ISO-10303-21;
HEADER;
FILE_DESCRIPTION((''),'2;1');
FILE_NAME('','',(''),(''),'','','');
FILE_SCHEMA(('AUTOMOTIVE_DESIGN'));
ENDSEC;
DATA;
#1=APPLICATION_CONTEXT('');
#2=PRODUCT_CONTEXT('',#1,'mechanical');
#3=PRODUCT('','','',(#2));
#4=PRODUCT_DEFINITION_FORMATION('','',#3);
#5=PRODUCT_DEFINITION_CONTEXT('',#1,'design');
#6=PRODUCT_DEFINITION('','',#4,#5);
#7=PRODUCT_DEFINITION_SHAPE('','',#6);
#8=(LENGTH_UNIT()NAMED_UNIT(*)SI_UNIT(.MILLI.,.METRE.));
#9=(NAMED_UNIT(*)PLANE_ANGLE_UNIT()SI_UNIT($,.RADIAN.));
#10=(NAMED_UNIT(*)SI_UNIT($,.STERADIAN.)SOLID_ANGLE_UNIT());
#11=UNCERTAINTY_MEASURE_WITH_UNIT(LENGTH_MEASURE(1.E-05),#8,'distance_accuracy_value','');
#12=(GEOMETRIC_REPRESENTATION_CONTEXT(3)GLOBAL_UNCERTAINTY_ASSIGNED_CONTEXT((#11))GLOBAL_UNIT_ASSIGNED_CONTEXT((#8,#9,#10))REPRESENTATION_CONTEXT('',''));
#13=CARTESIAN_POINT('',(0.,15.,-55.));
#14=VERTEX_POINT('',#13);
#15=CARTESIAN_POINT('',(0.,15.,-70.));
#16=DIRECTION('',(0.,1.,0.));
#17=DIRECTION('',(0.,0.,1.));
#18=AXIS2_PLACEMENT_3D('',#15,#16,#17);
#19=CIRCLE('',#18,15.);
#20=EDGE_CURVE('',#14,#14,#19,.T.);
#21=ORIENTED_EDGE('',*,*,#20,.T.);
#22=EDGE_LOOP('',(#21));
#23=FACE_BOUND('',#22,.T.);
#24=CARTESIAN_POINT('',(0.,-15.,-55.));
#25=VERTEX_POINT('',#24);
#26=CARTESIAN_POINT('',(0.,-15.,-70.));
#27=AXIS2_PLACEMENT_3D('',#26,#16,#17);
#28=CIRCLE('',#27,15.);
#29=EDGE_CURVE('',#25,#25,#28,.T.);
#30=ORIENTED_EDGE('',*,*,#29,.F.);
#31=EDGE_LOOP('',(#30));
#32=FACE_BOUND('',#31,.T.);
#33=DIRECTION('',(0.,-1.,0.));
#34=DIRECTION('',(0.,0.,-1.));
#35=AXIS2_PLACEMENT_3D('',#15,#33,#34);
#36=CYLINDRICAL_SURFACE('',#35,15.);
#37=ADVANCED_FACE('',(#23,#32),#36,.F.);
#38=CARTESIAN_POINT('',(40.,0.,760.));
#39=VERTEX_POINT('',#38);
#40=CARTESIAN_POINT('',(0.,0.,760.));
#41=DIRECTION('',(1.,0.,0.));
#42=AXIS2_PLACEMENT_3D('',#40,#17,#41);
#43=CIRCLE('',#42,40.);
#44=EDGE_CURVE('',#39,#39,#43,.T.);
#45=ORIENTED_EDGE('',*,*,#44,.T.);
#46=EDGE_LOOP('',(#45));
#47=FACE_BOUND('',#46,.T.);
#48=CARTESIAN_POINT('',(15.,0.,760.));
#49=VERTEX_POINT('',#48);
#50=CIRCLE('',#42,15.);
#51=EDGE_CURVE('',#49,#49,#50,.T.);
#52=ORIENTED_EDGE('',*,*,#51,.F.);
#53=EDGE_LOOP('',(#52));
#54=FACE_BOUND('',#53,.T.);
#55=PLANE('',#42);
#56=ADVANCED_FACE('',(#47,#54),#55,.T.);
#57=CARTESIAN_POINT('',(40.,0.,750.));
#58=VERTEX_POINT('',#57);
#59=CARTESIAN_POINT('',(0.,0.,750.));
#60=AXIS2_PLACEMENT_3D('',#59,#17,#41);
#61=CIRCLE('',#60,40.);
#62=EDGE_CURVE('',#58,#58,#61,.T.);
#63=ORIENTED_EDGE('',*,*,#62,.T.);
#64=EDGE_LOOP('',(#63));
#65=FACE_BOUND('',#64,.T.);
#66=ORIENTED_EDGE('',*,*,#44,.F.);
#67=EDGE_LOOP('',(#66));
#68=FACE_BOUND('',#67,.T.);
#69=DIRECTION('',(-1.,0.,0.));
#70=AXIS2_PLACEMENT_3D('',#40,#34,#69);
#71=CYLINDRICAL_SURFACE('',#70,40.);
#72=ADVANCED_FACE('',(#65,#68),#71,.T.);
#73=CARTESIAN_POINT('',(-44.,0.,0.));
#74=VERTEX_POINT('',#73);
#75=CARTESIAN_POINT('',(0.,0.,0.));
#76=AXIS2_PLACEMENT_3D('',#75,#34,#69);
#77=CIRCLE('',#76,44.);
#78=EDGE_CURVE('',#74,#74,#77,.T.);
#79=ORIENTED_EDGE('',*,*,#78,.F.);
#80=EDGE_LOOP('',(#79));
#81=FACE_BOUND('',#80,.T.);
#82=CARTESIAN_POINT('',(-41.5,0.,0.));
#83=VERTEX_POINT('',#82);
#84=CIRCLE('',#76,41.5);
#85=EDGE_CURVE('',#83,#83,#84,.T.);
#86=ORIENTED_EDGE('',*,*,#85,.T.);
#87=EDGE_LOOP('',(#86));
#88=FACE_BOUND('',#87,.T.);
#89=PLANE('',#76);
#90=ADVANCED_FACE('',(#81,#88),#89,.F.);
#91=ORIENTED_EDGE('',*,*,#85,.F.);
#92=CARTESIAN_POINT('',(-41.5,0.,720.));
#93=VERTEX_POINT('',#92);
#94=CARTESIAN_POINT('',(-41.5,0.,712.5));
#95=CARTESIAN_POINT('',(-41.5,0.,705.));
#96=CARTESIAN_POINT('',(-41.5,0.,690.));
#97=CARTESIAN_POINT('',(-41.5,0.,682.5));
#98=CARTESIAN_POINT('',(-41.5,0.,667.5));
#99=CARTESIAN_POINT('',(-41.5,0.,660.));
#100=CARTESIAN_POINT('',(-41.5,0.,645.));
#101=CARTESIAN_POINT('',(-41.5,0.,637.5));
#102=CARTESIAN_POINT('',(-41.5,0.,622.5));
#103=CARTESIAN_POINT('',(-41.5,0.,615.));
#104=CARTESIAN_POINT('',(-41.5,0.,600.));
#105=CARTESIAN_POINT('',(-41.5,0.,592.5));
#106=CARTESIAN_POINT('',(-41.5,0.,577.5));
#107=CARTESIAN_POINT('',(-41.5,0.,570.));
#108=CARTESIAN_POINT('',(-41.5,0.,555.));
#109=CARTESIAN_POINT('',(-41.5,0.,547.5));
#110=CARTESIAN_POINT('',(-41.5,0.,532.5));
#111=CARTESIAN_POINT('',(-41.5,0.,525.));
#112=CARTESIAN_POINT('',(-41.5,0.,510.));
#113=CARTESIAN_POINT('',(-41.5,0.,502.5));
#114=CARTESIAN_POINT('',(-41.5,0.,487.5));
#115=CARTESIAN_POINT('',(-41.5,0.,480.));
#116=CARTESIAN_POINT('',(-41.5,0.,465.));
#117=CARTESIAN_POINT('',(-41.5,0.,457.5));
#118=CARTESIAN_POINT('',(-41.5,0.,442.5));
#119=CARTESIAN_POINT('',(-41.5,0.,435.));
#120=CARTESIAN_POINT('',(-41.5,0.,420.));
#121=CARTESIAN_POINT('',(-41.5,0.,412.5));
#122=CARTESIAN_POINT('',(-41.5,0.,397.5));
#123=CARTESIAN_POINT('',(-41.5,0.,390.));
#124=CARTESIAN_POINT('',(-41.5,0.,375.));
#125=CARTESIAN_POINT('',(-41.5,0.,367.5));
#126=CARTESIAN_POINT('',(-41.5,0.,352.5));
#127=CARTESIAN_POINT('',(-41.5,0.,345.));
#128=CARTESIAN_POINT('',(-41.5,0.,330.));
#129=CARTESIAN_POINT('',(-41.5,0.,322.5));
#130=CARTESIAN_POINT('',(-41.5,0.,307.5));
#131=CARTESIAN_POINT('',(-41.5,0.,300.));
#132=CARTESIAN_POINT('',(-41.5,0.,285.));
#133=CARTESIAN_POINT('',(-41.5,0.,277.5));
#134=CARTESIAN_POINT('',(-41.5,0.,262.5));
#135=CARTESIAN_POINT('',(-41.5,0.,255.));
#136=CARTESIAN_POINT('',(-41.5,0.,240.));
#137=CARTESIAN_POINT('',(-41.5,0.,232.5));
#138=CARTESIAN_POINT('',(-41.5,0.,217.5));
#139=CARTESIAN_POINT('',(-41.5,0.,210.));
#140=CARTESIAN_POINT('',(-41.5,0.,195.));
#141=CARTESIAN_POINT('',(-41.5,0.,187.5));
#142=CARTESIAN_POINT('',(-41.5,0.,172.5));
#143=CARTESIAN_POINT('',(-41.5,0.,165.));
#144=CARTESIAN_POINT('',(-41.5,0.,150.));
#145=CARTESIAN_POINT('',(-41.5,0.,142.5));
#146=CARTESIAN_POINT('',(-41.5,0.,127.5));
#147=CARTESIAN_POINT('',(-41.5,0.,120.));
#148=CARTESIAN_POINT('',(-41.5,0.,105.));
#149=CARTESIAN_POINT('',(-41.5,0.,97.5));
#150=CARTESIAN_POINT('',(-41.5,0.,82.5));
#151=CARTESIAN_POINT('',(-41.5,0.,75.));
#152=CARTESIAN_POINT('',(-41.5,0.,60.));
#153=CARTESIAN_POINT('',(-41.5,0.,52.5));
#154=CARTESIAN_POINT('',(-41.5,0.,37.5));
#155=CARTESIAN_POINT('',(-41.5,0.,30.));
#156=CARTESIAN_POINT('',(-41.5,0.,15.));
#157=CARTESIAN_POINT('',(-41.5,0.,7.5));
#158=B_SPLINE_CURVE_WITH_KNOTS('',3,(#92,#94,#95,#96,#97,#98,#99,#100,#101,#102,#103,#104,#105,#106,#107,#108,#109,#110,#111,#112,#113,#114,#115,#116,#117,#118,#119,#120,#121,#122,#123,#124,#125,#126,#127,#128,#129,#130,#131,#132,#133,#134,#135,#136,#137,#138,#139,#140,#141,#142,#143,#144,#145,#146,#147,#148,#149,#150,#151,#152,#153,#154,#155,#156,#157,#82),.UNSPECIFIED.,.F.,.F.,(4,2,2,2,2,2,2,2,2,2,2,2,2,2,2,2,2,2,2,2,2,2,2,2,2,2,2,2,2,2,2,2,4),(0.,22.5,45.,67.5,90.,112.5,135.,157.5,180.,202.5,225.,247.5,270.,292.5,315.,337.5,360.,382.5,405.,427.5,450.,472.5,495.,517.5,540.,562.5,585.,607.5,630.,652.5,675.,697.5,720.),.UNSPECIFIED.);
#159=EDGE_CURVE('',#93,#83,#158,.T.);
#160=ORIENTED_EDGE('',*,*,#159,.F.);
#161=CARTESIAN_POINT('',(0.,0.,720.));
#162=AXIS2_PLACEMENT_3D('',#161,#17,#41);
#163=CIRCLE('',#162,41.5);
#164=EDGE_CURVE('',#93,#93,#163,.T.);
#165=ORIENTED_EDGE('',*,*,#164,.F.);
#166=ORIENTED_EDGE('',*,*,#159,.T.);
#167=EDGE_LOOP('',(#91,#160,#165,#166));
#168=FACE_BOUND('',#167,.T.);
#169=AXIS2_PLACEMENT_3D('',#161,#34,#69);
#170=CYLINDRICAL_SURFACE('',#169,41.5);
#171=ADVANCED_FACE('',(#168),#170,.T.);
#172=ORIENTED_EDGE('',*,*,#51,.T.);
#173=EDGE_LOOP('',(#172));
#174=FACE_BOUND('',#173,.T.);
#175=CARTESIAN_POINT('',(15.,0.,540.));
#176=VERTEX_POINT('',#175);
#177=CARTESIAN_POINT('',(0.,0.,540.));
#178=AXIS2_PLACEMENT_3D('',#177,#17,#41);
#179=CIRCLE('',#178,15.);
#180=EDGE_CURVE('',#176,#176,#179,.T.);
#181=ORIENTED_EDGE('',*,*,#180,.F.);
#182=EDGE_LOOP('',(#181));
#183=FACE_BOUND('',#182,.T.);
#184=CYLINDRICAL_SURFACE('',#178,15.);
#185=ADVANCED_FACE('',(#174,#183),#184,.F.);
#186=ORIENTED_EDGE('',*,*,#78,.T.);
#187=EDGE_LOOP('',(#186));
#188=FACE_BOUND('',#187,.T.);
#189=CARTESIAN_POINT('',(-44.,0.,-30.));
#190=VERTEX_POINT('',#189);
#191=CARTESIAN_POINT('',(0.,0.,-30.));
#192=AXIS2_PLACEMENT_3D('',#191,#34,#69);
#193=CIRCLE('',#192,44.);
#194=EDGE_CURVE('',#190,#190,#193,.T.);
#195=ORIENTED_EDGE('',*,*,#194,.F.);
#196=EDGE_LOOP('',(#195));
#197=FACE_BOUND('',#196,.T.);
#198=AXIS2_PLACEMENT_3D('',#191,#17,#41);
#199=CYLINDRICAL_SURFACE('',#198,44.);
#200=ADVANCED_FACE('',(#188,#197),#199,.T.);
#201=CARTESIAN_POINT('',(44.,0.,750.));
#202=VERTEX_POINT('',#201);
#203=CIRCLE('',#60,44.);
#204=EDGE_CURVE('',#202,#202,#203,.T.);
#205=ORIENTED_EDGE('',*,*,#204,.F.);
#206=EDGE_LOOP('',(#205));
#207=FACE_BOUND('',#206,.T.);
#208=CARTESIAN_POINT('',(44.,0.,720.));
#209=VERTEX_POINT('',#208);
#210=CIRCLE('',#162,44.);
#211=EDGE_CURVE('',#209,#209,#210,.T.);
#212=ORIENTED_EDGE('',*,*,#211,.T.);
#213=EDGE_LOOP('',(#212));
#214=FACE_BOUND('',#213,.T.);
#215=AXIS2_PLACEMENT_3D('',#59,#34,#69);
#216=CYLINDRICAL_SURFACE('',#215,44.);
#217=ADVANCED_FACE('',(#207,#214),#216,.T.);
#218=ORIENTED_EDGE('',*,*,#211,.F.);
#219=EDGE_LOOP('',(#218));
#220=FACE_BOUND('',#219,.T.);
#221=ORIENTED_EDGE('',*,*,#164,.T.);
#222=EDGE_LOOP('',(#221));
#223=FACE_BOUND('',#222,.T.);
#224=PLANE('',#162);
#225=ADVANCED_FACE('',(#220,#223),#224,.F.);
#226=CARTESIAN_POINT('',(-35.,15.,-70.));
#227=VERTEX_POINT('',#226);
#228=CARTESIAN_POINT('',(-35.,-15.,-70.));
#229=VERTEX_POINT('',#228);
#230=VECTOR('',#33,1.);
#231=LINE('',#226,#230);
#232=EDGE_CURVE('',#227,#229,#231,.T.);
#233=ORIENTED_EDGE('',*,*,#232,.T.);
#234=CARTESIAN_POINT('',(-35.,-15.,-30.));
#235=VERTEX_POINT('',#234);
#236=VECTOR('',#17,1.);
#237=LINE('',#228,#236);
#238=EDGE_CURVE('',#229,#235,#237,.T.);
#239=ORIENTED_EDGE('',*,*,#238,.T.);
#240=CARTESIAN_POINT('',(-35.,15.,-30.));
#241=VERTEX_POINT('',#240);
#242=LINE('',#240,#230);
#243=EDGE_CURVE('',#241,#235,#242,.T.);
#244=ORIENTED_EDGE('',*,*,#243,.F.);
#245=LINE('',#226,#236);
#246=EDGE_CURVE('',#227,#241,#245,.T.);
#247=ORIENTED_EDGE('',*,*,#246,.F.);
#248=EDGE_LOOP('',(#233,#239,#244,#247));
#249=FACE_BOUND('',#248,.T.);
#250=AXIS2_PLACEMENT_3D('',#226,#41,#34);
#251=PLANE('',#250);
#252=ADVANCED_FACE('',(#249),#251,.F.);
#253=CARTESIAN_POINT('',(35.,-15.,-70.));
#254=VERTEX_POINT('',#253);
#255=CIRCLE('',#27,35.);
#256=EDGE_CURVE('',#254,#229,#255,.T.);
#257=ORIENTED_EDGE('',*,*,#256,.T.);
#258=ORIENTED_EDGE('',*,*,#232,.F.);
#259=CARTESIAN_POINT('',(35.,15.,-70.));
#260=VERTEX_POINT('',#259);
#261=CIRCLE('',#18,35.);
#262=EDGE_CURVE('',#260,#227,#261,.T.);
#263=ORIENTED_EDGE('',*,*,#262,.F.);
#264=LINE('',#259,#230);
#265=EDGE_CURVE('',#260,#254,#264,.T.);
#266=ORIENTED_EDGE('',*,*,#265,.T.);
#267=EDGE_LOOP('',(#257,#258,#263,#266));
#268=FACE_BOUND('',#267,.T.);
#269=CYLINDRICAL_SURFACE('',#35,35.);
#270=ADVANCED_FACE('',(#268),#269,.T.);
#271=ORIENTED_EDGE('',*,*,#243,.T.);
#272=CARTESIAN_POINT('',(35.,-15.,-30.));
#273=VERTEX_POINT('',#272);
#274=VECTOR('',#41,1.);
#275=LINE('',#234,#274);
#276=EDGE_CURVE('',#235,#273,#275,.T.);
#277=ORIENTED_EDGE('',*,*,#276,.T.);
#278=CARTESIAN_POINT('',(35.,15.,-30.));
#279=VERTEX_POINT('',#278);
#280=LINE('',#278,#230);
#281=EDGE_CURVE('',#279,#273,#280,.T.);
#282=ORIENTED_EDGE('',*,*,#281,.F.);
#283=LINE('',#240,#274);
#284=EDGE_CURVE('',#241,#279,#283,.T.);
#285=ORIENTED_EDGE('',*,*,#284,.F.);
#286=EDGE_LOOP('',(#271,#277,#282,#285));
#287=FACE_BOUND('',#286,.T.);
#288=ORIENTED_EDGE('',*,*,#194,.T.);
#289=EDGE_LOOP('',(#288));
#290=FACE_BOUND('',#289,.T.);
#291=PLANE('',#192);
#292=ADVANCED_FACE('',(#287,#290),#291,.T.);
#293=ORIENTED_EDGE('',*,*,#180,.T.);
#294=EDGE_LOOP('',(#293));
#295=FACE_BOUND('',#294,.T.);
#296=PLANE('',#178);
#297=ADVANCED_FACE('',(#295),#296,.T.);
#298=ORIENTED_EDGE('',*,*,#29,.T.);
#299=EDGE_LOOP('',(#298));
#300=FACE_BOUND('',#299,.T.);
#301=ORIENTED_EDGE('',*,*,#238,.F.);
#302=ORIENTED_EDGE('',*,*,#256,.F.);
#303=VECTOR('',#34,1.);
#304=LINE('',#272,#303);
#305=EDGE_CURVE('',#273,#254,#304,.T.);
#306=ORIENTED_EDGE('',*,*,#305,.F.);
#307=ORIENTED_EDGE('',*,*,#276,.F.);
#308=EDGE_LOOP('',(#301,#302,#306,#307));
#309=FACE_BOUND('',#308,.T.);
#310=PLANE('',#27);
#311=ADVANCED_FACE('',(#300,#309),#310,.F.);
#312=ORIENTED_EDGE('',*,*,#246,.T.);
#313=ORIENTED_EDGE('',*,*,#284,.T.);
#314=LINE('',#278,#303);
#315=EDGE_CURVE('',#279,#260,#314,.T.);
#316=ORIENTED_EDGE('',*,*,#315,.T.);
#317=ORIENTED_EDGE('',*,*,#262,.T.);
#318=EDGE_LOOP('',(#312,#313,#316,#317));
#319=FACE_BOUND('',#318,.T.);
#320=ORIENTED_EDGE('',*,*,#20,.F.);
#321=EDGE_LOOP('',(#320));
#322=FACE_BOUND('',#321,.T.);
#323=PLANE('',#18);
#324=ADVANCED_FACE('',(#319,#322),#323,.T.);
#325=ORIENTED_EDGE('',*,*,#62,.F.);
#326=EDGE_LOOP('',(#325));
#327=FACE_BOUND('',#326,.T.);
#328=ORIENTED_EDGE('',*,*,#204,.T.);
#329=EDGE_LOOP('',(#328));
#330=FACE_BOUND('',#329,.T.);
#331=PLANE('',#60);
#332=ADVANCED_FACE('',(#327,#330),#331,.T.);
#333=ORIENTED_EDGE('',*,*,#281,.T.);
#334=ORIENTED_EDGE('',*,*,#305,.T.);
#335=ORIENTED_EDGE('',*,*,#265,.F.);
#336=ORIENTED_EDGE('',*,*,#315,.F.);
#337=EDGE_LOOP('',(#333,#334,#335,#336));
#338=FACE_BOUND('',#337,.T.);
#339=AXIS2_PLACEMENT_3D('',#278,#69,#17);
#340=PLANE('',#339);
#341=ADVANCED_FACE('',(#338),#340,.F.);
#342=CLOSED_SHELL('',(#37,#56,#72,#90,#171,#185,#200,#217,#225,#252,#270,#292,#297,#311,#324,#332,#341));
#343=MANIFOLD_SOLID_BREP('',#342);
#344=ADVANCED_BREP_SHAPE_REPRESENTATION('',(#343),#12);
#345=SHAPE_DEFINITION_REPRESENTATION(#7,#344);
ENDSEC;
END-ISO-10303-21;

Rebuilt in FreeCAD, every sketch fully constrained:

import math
import FreeCAD as App
import Part
import Sketcher
from FreeCAD import Vector

doc = App.newDocument("Part")
params = doc.addObject("Spreadsheet::Sheet", "Params")
for row, (alias, value) in enumerate([
    ("sketch1_diameter", "83 mm"),
    ("pad1_length", "720 mm"),
    ("sketch2_diameter", "88 mm"),
    ("pad2_length", "30 mm"),
    ("sketch3_diameter", "88 mm"),
    ("pad3_length", "30 mm"),
    ("sketch4_diameter", "80 mm"),
    ("pad4_length", "10 mm"),
    ("sketch5_diameter", "30 mm"),
    ("sketch5_radius", "35 mm"),
    ("sketch5_height", "40 mm"),
    ("pad5_length", "30 mm"),
    ("sketch6_diameter", "30 mm"),
    ("pocket1_length", "220 mm"),
], start=1):
    params.set(f"A{row}", alias)
    params.set(f"B{row}", "=" + value)
    params.setAlias(f"B{row}", alias)

body = doc.addObject("PartDesign::Body", "Body")

# Sketch on XY plane
sketch1 = body.newObject("Sketcher::SketchObject", "Sketch")
sketch1.AttachmentSupport = (doc.getObject("XY_Plane"), [""])
sketch1.MapMode = "FlatFace"
sketch1.addGeometry(Part.Circle(Vector(0, 0, 0), Vector(0, 0, 1), 42), False)
sketch1.addConstraint([
    Sketcher.Constraint("Coincident", 0, 3, -1, 1),
    Sketcher.Constraint("Diameter", 0, 83.0),
])
sketch1.setExpression("Constraints[1]", "Params.sketch1_diameter")
pad1 = body.newObject("PartDesign::Pad", "Pad")
pad1.Profile = sketch1
pad1.setExpression("Length", "Params.pad1_length")

# Sketch on XY plane
sketch2 = body.newObject("Sketcher::SketchObject", "Sketch001")
sketch2.AttachmentSupport = (doc.getObject("XY_Plane"), [""])
sketch2.MapMode = "FlatFace"
sketch2.AttachmentOffset = App.Placement(Vector(0, 0, 720), App.Rotation())
sketch2.addGeometry(Part.Circle(Vector(0, 0, 0), Vector(0, 0, 1), 44), False)
sketch2.addConstraint([
    Sketcher.Constraint("Coincident", 0, 3, -1, 1),
    Sketcher.Constraint("Diameter", 0, 88.0),
])
sketch2.setExpression("Constraints[1]", "Params.sketch2_diameter")
pad2 = body.newObject("PartDesign::Pad", "Pad001")
pad2.Profile = sketch2
pad2.setExpression("Length", "Params.pad2_length")

# Sketch on XY plane
sketch3 = body.newObject("Sketcher::SketchObject", "Sketch002")
sketch3.AttachmentSupport = (doc.getObject("XY_Plane"), [""])
sketch3.MapMode = "FlatFace"
sketch3.AttachmentOffset = App.Placement(Vector(0, 0, -30), App.Rotation())
sketch3.addGeometry(Part.Circle(Vector(0, 0, 0), Vector(0, 0, 1), 44), False)
sketch3.addConstraint([
    Sketcher.Constraint("Coincident", 0, 3, -1, 1),
    Sketcher.Constraint("Diameter", 0, 88.0),
])
sketch3.setExpression("Constraints[1]", "Params.sketch3_diameter")
pad3 = body.newObject("PartDesign::Pad", "Pad002")
pad3.Profile = sketch3
pad3.setExpression("Length", "Params.pad3_length")

# Sketch on XY plane
sketch4 = body.newObject("Sketcher::SketchObject", "Sketch003")
sketch4.AttachmentSupport = (doc.getObject("XY_Plane"), [""])
sketch4.MapMode = "FlatFace"
sketch4.AttachmentOffset = App.Placement(Vector(0, 0, 750), App.Rotation())
sketch4.addGeometry(Part.Circle(Vector(0, 0, 0), Vector(0, 0, 1), 40), False)
sketch4.addConstraint([
    Sketcher.Constraint("Coincident", 0, 3, -1, 1),
    Sketcher.Constraint("Diameter", 0, 80.0),
])
sketch4.setExpression("Constraints[1]", "Params.sketch4_diameter")
pad4 = body.newObject("PartDesign::Pad", "Pad003")
pad4.Profile = sketch4
pad4.setExpression("Length", "Params.pad4_length")

# Sketch on XZ plane
sketch5 = body.newObject("Sketcher::SketchObject", "Sketch004")
sketch5.AttachmentSupport = (doc.getObject("XZ_Plane"), [""])
sketch5.MapMode = "FlatFace"
sketch5.addGeometry([
    Part.LineSegment(Vector(-35, -70, 0), Vector(-35, -30, 0)),  # 0
    Part.LineSegment(Vector(-35, -30, 0), Vector(35, -30, 0)),  # 1
    Part.LineSegment(Vector(35, -30, 0), Vector(35, -70, 0)),  # 2
    Part.ArcOfCircle(Part.Circle(Vector(0, -70, 0), Vector(0, 0, 1), 35), math.radians(180), math.radians(360)),  # 3
    Part.Circle(Vector(0, -70, 0), Vector(0, 0, 1), 15),  # 4
], False)
sketch5.addConstraint([
    Sketcher.Constraint("Coincident", 0, 2, 1, 1),
    Sketcher.Constraint("Coincident", 1, 2, 2, 1),
    Sketcher.Constraint("Tangent", 2, 2, 3, 2),
    Sketcher.Constraint("Tangent", 3, 1, 0, 1),
    Sketcher.Constraint("Vertical", 0),
    Sketcher.Constraint("Horizontal", 1),
    Sketcher.Constraint("Vertical", 2),
    Sketcher.Constraint("Coincident", 4, 3, 3, 3),
    Sketcher.Constraint("PointOnObject", 3, 3, -2),
    Sketcher.Constraint("Diameter", 4, 30.0),
    Sketcher.Constraint("Radius", 3, 35.0),
    Sketcher.Constraint("DistanceY", 0, 1, 0, 2, 40.0),
    Sketcher.Constraint("DistanceY", 3, 3, -1, 1, 70.0),
])
sketch5.setExpression("Constraints[9]", "Params.sketch5_diameter")
sketch5.setExpression("Constraints[10]", "Params.sketch5_radius")
sketch5.setExpression("Constraints[11]", "Params.sketch5_height")
pad5 = body.newObject("PartDesign::Pad", "Pad004")
pad5.Profile = sketch5
pad5.setExpression("Length", "Params.pad5_length")
pad5.Midplane = True

# Sketch on XY plane
sketch6 = body.newObject("Sketcher::SketchObject", "Sketch005")
sketch6.AttachmentSupport = (doc.getObject("XY_Plane"), [""])
sketch6.MapMode = "FlatFace"
sketch6.AttachmentOffset = App.Placement(Vector(0, 0, 760), App.Rotation())
sketch6.addGeometry(Part.Circle(Vector(0, 0, 0), Vector(0, 0, 1), 15), False)
sketch6.addConstraint([
    Sketcher.Constraint("Coincident", 0, 3, -1, 1),
    Sketcher.Constraint("Diameter", 0, 30.0),
])
sketch6.setExpression("Constraints[1]", "Params.sketch6_diameter")
pocket1 = body.newObject("PartDesign::Pocket", "Pocket")
pocket1.Profile = sketch6
pocket1.setExpression("Length", "Params.pocket1_length")

doc.recompute()
